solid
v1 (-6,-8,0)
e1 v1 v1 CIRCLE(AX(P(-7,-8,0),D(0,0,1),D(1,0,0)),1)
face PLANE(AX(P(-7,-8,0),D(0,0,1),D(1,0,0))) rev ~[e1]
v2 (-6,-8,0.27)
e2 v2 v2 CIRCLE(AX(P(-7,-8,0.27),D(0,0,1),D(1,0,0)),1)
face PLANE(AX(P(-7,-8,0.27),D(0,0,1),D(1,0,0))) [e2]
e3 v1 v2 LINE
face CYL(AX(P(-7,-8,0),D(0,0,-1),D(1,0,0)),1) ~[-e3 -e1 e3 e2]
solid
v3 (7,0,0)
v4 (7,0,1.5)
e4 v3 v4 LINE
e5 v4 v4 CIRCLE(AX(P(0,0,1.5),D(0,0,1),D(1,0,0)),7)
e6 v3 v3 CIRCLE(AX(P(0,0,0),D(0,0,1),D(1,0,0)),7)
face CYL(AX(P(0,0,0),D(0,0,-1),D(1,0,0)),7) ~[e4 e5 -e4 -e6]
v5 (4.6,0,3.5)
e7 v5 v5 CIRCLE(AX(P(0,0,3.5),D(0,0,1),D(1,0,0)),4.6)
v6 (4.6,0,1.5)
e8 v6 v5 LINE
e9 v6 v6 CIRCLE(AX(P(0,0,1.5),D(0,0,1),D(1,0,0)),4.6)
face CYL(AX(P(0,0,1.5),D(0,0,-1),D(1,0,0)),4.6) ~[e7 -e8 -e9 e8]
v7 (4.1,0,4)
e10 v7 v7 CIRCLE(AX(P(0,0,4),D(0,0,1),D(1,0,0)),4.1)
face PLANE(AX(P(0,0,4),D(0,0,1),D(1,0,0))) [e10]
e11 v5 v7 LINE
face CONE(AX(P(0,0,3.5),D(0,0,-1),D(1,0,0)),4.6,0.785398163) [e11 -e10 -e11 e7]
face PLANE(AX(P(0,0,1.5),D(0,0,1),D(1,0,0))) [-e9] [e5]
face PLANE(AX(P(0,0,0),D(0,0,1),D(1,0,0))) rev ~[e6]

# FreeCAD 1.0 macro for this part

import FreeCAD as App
import Part
import Sketcher
from FreeCAD import Vector


def edges_at(feature, points):
    """Names of the edges that pass closest to the given points."""
    edges = feature.Shape.Edges
    near = lambda p: min(range(len(edges)), key=lambda i: edges[i].distToShape(Part.Vertex(*p))[0])
    return sorted({f"Edge{near(p) + 1}" for p in points})

doc = App.newDocument("Part")
body = doc.addObject("PartDesign::Body", "Body")

sketch1 = body.newObject("Sketcher::SketchObject", "Sketch")
sketch1.AttachmentSupport = (doc.getObject("XY_Plane"), [""])
sketch1.MapMode = "FlatFace"
sketch1.addGeometry(Part.Circle(Vector(0, 0, 0), Vector(0, 0, 1), 7), False)
sketch1.addConstraint([
    Sketcher.Constraint("Coincident", 0, 3, -1, 1),
    Sketcher.Constraint("Diameter", 0, 14.0),
])
pad1 = body.newObject("PartDesign::Pad", "Pad")
pad1.Profile = sketch1
pad1.Length = 1.5

sketch2 = body.newObject("Sketcher::SketchObject", "Sketch001")
sketch2.AttachmentSupport = (doc.getObject("XY_Plane"), [""])
sketch2.MapMode = "FlatFace"
sketch2.AttachmentOffset = App.Placement(Vector(0, 0, 1.5), App.Rotation())
sketch2.addGeometry(Part.Circle(Vector(0, 0, 0), Vector(0, 0, 1), 4.6), False)
sketch2.addConstraint([
    Sketcher.Constraint("Coincident", 0, 3, -1, 1),
    Sketcher.Constraint("Diameter", 0, 9.2),
])
pad2 = body.newObject("PartDesign::Pad", "Pad001")
pad2.Profile = sketch2
pad2.Length = 2.5
doc.recompute()

chamfer = body.newObject("PartDesign::Chamfer", "Chamfer")
chamfer.Base = (pad2, edges_at(pad2, [(-4.6, 0, 4)]))
chamfer.Size = 0.5
body2 = doc.addObject("PartDesign::Body", "Body001")

sketch3 = body2.newObject("Sketcher::SketchObject", "Sketch002")
sketch3.AttachmentSupport = (doc.getObject("XY_Plane001"), [""])
sketch3.MapMode = "FlatFace"
sketch3.addGeometry(Part.Circle(Vector(-7, -8, 0), Vector(0, 0, 1), 1), False)
sketch3.addConstraint([
    Sketcher.Constraint("Diameter", 0, 2.0),
    Sketcher.Constraint("DistanceX", 0, 3, -1, 1, 7.0),
    Sketcher.Constraint("DistanceY", 0, 3, -1, 1, 8.0),
])
pad3 = body2.newObject("PartDesign::Pad", "Pad002")
pad3.Profile = sketch3
pad3.Length = 0.27

doc.recompute()
